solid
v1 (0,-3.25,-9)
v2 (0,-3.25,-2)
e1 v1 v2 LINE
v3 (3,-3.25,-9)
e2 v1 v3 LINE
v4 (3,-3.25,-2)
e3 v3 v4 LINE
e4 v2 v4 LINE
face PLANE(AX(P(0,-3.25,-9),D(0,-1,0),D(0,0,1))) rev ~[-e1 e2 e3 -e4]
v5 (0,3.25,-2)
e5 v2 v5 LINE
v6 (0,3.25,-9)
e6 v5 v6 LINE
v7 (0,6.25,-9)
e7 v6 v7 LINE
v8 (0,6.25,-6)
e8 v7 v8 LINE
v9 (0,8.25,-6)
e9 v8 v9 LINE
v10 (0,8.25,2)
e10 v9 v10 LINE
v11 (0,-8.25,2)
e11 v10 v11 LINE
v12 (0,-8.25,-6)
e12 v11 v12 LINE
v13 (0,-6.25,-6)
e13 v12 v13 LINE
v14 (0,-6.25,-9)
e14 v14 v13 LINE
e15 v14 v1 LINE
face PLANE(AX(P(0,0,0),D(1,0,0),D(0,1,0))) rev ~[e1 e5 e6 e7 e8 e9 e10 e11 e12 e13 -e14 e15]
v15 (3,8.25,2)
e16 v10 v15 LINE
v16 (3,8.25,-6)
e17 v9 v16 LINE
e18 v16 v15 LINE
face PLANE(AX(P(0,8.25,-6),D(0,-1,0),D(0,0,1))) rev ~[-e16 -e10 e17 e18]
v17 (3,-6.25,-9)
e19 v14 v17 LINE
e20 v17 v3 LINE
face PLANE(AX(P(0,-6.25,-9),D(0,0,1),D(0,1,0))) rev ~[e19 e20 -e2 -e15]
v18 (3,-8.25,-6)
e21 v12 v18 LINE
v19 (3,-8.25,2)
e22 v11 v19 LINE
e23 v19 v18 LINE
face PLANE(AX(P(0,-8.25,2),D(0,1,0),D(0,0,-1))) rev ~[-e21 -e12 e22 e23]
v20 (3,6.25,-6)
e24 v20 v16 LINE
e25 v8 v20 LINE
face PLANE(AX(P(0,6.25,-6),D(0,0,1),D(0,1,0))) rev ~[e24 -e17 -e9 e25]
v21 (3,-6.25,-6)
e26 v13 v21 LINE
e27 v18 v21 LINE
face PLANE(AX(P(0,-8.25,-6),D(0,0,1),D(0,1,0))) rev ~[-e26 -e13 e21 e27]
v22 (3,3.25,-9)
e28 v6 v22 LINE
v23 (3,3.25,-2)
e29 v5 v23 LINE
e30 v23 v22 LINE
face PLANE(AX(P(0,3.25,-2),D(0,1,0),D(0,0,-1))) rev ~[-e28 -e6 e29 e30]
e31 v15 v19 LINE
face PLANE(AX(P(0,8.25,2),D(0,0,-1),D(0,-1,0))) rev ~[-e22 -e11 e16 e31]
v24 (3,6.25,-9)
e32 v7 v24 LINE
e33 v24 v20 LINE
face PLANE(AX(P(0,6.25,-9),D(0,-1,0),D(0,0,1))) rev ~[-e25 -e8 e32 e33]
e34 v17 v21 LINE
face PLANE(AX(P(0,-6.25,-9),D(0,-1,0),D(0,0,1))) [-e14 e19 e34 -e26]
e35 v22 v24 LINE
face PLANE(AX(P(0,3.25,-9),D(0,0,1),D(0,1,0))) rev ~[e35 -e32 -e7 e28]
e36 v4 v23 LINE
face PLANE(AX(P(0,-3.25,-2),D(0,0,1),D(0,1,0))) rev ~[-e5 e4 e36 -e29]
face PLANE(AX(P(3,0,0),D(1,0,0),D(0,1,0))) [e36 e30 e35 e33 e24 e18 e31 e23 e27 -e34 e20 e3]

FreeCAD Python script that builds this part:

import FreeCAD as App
import Part
import Sketcher

doc = App.newDocument("Part")
params = doc.addObject("Spreadsheet::Sheet", "Params")
for row, (alias, value) in enumerate([
    ("sketch1_width", "3 mm"),
    ("sketch1_width2", "2 mm"),
    ("sketch1_height", "7 mm"),
    ("sketch1_height2", "8 mm"),
    ("sketch1_width3", "6.5 mm"),
    ("pad1_length", "3 mm"),
], start=1):
    params.set(f"A{row}", alias)
    params.set(f"B{row}", "=" + value)
    params.setAlias(f"B{row}", alias)

body = doc.addObject("PartDesign::Body", "Body")

# Sketch on YZ plane
sketch1 = doc.addObject("Sketcher::SketchObject", "Sketch")
body.addObject(sketch1)
sketch1.AttachmentSupport = (doc.YZ_Plane, [""])
sketch1.MapMode = "FlatFace"
sketch1.addGeometry([
    Part.LineSegment(App.Vector(-3.25, -2, 0), App.Vector(3.25, -2, 0)),  # 0
    Part.LineSegment(App.Vector(3.25, -2, 0), App.Vector(3.25, -9, 0)),  # 1
    Part.LineSegment(App.Vector(3.25, -9, 0), App.Vector(6.25, -9, 0)),  # 2
    Part.LineSegment(App.Vector(6.25, -9, 0), App.Vector(6.25, -6, 0)),  # 3
    Part.LineSegment(App.Vector(6.25, -6, 0), App.Vector(8.25, -6, 0)),  # 4
    Part.LineSegment(App.Vector(8.25, -6, 0), App.Vector(8.25, 2, 0)),  # 5
    Part.LineSegment(App.Vector(8.25, 2, 0), App.Vector(-8.25, 2, 0)),  # 6
    Part.LineSegment(App.Vector(-8.25, 2, 0), App.Vector(-8.25, -6, 0)),  # 7
    Part.LineSegment(App.Vector(-8.25, -6, 0), App.Vector(-6.25, -6, 0)),  # 8
    Part.LineSegment(App.Vector(-6.25, -6, 0), App.Vector(-6.25, -9, 0)),  # 9
    Part.LineSegment(App.Vector(-6.25, -9, 0), App.Vector(-3.25, -9, 0)),  # 10
    Part.LineSegment(App.Vector(-3.25, -9, 0), App.Vector(-3.25, -2, 0)),  # 11
], False)
sketch1.addConstraint([
    Sketcher.Constraint("Coincident", 0, 2, 1, 1),
    Sketcher.Constraint("Coincident", 1, 2, 2, 1),
    Sketcher.Constraint("Coincident", 2, 2, 3, 1),
    Sketcher.Constraint("Coincident", 3, 2, 4, 1),
    Sketcher.Constraint("Coincident", 4, 2, 5, 1),
    Sketcher.Constraint("Coincident", 5, 2, 6, 1),
    Sketcher.Constraint("Coincident", 6, 2, 7, 1),
    Sketcher.Constraint("Coincident", 7, 2, 8, 1),
    Sketcher.Constraint("Coincident", 8, 2, 9, 1),
    Sketcher.Constraint("Coincident", 9, 2, 10, 1),
    Sketcher.Constraint("Coincident", 10, 2, 11, 1),
    Sketcher.Constraint("Coincident", 11, 2, 0, 1),
    Sketcher.Constraint("Horizontal", 0),
    Sketcher.Constraint("Vertical", 1),
    Sketcher.Constraint("Horizontal", 2),
    Sketcher.Constraint("Vertical", 3),
    Sketcher.Constraint("Horizontal", 4),
    Sketcher.Constraint("Vertical", 5),
    Sketcher.Constraint("Horizontal", 6),
    Sketcher.Constraint("Vertical", 7),
    Sketcher.Constraint("Horizontal", 8),
    Sketcher.Constraint("Vertical", 9),
    Sketcher.Constraint("Horizontal", 10),
    Sketcher.Constraint("Vertical", 11),
    Sketcher.Constraint("Symmetric", 4, 2, 7, 2, -2),
    Sketcher.Constraint("Symmetric", 2, 2, 9, 2, -2),
    Sketcher.Constraint("Equal", 2, 10),
    Sketcher.Constraint("Equal", 10, 3),
    Sketcher.Constraint("DistanceX", 2, 1, 2, 2, 3.0),
    Sketcher.Constraint("DistanceX", 4, 1, 4, 2, 2.0),
    Sketcher.Constraint("DistanceY", 1, 2, 1, 1, 7.0),
    Sketcher.Constraint("DistanceY", 5, 1, 5, 2, 8.0),
    Sketcher.Constraint("DistanceX", 0, 1, 0, 2, 6.5),
    Sketcher.Constraint("DistanceY", 0, 2, -1, 1, 2.0),
])
sketch1.setExpression("Constraints[28]", "Params.sketch1_width")
sketch1.setExpression("Constraints[29]", "Params.sketch1_width2")
sketch1.setExpression("Constraints[30]", "Params.sketch1_height")
sketch1.setExpression("Constraints[31]", "Params.sketch1_height2")
sketch1.setExpression("Constraints[32]", "Params.sketch1_width3")
pad1 = doc.addObject("PartDesign::Pad", "Pad")
body.addObject(pad1)
pad1.Profile = sketch1
pad1.setExpression("Length", "Params.pad1_length")

doc.recompute()
